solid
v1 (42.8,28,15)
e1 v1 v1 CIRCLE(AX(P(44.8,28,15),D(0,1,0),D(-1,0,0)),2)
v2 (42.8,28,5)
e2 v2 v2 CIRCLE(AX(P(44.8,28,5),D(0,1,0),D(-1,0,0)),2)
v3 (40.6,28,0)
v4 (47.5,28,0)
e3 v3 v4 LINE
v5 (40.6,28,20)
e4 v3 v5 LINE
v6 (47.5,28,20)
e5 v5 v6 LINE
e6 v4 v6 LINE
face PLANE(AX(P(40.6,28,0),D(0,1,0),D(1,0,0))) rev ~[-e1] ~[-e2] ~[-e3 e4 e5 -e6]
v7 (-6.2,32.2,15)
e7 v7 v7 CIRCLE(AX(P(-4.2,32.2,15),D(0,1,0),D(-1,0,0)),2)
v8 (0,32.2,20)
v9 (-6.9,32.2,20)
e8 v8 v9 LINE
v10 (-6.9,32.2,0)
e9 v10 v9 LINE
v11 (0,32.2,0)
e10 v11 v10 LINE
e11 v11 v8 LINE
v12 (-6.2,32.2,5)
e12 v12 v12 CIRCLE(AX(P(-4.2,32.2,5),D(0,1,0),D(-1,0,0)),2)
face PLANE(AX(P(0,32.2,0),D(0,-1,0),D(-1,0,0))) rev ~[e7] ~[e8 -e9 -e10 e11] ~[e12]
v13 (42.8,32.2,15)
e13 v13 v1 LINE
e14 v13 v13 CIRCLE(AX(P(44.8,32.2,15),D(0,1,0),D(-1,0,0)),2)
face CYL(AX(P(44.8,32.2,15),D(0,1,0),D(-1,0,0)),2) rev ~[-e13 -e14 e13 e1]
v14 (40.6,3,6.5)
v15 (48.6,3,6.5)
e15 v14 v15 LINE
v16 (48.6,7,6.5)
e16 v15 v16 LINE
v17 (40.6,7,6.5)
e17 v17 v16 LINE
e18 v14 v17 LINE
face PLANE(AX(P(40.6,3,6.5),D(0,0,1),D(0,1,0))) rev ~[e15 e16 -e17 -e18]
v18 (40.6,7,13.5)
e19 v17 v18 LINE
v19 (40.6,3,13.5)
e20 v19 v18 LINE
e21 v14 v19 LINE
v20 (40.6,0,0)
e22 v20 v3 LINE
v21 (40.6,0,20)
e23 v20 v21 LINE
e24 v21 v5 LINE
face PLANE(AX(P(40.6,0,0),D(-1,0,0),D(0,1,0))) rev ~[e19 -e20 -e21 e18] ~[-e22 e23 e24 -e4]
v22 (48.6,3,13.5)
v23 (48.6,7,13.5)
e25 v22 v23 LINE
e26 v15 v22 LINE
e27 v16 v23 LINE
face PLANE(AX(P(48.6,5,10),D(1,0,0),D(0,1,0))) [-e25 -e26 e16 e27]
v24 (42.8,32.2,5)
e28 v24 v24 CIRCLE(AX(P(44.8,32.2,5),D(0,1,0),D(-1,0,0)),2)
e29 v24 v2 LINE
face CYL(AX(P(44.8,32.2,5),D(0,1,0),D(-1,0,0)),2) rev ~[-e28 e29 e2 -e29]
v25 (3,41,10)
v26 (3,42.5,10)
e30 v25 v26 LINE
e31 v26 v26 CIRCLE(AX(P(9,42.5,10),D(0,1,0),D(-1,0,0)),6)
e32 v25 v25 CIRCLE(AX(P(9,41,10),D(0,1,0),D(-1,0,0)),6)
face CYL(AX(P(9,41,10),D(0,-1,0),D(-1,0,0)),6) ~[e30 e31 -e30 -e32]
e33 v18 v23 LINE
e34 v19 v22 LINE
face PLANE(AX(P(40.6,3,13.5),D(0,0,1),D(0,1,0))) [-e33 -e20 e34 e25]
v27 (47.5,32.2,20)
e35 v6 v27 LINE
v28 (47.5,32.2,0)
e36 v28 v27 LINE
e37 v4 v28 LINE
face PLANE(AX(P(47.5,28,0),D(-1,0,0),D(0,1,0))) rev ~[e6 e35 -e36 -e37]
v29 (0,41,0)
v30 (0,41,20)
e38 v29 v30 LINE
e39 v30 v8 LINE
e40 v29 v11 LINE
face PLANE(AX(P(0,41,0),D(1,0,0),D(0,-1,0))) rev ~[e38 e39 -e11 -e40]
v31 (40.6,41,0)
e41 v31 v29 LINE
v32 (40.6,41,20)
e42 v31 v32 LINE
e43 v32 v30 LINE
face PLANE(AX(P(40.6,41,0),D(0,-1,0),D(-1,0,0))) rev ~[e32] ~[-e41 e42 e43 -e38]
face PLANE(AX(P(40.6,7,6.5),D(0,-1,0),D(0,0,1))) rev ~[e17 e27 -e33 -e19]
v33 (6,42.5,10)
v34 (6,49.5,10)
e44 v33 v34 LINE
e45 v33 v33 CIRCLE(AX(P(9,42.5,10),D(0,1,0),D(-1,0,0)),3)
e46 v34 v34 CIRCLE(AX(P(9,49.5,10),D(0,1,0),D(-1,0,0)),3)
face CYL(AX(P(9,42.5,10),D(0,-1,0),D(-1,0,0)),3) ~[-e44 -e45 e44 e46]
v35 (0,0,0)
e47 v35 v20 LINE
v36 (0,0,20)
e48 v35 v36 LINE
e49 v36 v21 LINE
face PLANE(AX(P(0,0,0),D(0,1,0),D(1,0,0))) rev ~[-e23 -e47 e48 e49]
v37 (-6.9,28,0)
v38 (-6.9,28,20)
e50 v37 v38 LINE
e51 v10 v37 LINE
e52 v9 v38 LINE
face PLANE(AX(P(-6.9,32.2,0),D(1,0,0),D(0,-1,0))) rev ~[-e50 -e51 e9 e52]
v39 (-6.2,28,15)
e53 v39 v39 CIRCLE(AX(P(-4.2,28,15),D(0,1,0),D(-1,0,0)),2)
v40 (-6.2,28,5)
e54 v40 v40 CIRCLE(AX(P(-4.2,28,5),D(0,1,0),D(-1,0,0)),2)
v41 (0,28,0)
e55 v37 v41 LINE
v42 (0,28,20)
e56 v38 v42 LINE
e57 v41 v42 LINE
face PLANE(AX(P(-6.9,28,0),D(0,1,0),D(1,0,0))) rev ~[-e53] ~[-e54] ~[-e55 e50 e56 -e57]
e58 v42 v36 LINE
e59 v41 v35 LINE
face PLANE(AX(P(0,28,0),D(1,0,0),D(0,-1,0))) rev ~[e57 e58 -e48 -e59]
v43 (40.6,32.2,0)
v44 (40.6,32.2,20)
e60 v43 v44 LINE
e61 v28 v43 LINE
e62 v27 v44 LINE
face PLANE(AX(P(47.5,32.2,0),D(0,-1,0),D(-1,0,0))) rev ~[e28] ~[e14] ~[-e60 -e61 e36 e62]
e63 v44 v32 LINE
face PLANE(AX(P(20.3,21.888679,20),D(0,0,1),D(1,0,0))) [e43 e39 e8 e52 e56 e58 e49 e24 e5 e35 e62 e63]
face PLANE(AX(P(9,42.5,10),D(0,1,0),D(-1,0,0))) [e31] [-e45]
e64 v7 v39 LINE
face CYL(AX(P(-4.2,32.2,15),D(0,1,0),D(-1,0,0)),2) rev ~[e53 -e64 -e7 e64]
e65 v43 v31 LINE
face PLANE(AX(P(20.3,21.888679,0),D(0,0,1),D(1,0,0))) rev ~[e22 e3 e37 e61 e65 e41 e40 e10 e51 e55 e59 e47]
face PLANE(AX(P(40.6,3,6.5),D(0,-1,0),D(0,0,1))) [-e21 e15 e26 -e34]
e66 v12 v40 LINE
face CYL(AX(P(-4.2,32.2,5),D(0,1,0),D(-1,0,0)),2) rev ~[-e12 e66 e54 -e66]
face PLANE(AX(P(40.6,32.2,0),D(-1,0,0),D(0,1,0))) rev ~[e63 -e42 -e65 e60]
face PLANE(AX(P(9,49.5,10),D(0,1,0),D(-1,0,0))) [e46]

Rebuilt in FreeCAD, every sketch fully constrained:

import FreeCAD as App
import Part
import Sketcher

V = App.Vector


def add_polygon(sketch, points):
    """Adds a closed chain of lines whose ends are joined by coincident constraints."""
    first, n = sketch.GeometryCount, len(points)
    for a, b in zip(points, points[1:] + points[:1]):
        sketch.addGeometry(Part.LineSegment(App.Vector(*a, 0), App.Vector(*b, 0)), False)
    for i in range(n):
        sketch.addConstraint(Sketcher.Constraint("Coincident", first + i, 2, first + (i + 1) % n, 1))

doc = App.newDocument("Part")
body = doc.addObject("PartDesign::Body", "Body")

sketch1 = body.newObject("Sketcher::SketchObject", "Sketch")
sketch1.AttachmentSupport = (doc.getObject("XY_Plane"), [""])
sketch1.MapMode = "FlatFace"
add_polygon(sketch1, [(0, 0), (40.6, 0), (40.6, 28), (47.5, 28), (47.5, 32.2), (40.6, 32.2), (40.6, 41), (0, 41), (0, 32.2), (-6.9, 32.2), (-6.9, 28), (0, 28)])
sketch1.addConstraint([
    Sketcher.Constraint("Horizontal", 0),
    Sketcher.Constraint("Vertical", 1),
    Sketcher.Constraint("Horizontal", 2),
    Sketcher.Constraint("Vertical", 3),
    Sketcher.Constraint("Horizontal", 4),
    Sketcher.Constraint("Vertical", 5),
    Sketcher.Constraint("Horizontal", 6),
    Sketcher.Constraint("Vertical", 7),
    Sketcher.Constraint("Horizontal", 8),
    Sketcher.Constraint("Vertical", 9),
    Sketcher.Constraint("Horizontal", 10),
    Sketcher.Constraint("Vertical", 11),
    Sketcher.Constraint("Coincident", 11, 2, -1, 1),
    Sketcher.Constraint("PointOnObject", 6, 2, -2),
    Sketcher.Constraint("Horizontal", 4, 2, 7, 2),
    Sketcher.Constraint("Horizontal", 2, 2, 9, 2),
    Sketcher.Constraint("Vertical", 1, 2, 4, 2),
    Sketcher.Constraint("Equal", 4, 8),
    Sketcher.Constraint("DistanceY", 1, 1, 1, 2, 28.0),
    Sketcher.Constraint("DistanceX", 0, 1, 0, 2, 40.6),
    Sketcher.Constraint("DistanceX", 2, 1, 2, 2, 6.9),
    Sketcher.Constraint("DistanceY", 3, 1, 3, 2, 4.2),
    Sketcher.Constraint("DistanceY", 5, 1, 5, 2, 8.8),
])
pad1 = body.newObject("PartDesign::Pad", "Pad")
pad1.Profile = sketch1
pad1.Length = 20

sketch2 = body.newObject("Sketcher::SketchObject", "Sketch001")
sketch2.AttachmentSupport = (doc.getObject("XZ_Plane"), [""])
sketch2.MapMode = "FlatFace"
sketch2.AttachmentOffset = App.Placement(V(0, 0, -41), App.Rotation())
sketch2.addGeometry(Part.Circle(V(9, 10, 0), V(0, 0, 1), 6), False)
sketch2.addConstraint([
    Sketcher.Constraint("Diameter", 0, 12.0),
    Sketcher.Constraint("DistanceX", -1, 1, 0, 3, 9.0),
    Sketcher.Constraint("DistanceY", -1, 1, 0, 3, 10.0),
])
pad2 = body.newObject("PartDesign::Pad", "Pad001")
pad2.Profile = sketch2
pad2.Length = 1.5
pad2.Reversed = True

sketch3 = body.newObject("Sketcher::SketchObject", "Sketch002")
sketch3.AttachmentSupport = (doc.getObject("XZ_Plane"), [""])
sketch3.MapMode = "FlatFace"
sketch3.AttachmentOffset = App.Placement(V(0, 0, -42.5), App.Rotation())
sketch3.addGeometry(Part.Circle(V(9, 10, 0), V(0, 0, 1), 3), False)
sketch3.addConstraint([
    Sketcher.Constraint("Diameter", 0, 6.0),
    Sketcher.Constraint("DistanceX", -1, 1, 0, 3, 9.0),
    Sketcher.Constraint("DistanceY", -1, 1, 0, 3, 10.0),
])
pad3 = body.newObject("PartDesign::Pad", "Pad002")
pad3.Profile = sketch3
pad3.Length = 7
pad3.Reversed = True

sketch4 = body.newObject("Sketcher::SketchObject", "Sketch003")
sketch4.AttachmentSupport = (doc.getObject("XZ_Plane"), [""])
sketch4.MapMode = "FlatFace"
sketch4.AttachmentOffset = App.Placement(V(0, 0, -32.2), App.Rotation())
sketch4.addGeometry([
    Part.Circle(V(-4.2, 15, 0), V(0, 0, 1), 2),
    Part.Circle(V(-4.2, 5, 0), V(0, 0, 1), 2),
    Part.Circle(V(44.8, 5, 0), V(0, 0, 1), 2),
    Part.Circle(V(44.8, 15, 0), V(0, 0, 1), 2),
], False)
sketch4.addConstraint([
    Sketcher.Constraint("Equal", 0, 1),
    Sketcher.Constraint("Equal", 1, 2),
    Sketcher.Constraint("Equal", 2, 3),
    Sketcher.Constraint("Horizontal", 1, 3, 2, 3),
    Sketcher.Constraint("Horizontal", 0, 3, 3, 3),
    Sketcher.Constraint("Vertical", 0, 3, 1, 3),
    Sketcher.Constraint("Vertical", 2, 3, 3, 3),
    Sketcher.Constraint("Diameter", 0, 4.0),
    Sketcher.Constraint("DistanceY", -1, 1, 0, 3, 15.0),
    Sketcher.Constraint("DistanceY", -1, 1, 1, 3, 5.0),
    Sketcher.Constraint("DistanceX", 1, 3, 2, 3, 49.0),
    Sketcher.Constraint("DistanceX", 0, 3, -1, 1, 4.2),
])
pocket1 = body.newObject("PartDesign::Pocket", "Pocket")
pocket1.Profile = sketch4
pocket1.Type = "ThroughAll"
pocket1.Reversed = True

sketch5 = body.newObject("Sketcher::SketchObject", "Sketch004")
sketch5.AttachmentSupport = (doc.getObject("YZ_Plane"), [""])
sketch5.MapMode = "FlatFace"
sketch5.AttachmentOffset = App.Placement(V(0, 0, 40.6), App.Rotation())
add_polygon(sketch5, [(3, 13.5), (3, 6.5), (7, 6.5), (7, 13.5)])
sketch5.addConstraint([
    Sketcher.Constraint("Vertical", 0),
    Sketcher.Constraint("Horizontal", 1),
    Sketcher.Constraint("Vertical", 2),
    Sketcher.Constraint("Horizontal", 3),
    Sketcher.Constraint("DistanceX", 1, 1, 1, 2, 4.0),
    Sketcher.Constraint("DistanceY", 0, 2, 0, 1, 7.0),
    Sketcher.Constraint("DistanceX", -1, 1, 0, 2, 3.0),
    Sketcher.Constraint("DistanceY", -1, 1, 0, 2, 6.5),
])
pad4 = body.newObject("PartDesign::Pad", "Pad003")
pad4.Profile = sketch5
pad4.Length = 8

doc.recompute()
